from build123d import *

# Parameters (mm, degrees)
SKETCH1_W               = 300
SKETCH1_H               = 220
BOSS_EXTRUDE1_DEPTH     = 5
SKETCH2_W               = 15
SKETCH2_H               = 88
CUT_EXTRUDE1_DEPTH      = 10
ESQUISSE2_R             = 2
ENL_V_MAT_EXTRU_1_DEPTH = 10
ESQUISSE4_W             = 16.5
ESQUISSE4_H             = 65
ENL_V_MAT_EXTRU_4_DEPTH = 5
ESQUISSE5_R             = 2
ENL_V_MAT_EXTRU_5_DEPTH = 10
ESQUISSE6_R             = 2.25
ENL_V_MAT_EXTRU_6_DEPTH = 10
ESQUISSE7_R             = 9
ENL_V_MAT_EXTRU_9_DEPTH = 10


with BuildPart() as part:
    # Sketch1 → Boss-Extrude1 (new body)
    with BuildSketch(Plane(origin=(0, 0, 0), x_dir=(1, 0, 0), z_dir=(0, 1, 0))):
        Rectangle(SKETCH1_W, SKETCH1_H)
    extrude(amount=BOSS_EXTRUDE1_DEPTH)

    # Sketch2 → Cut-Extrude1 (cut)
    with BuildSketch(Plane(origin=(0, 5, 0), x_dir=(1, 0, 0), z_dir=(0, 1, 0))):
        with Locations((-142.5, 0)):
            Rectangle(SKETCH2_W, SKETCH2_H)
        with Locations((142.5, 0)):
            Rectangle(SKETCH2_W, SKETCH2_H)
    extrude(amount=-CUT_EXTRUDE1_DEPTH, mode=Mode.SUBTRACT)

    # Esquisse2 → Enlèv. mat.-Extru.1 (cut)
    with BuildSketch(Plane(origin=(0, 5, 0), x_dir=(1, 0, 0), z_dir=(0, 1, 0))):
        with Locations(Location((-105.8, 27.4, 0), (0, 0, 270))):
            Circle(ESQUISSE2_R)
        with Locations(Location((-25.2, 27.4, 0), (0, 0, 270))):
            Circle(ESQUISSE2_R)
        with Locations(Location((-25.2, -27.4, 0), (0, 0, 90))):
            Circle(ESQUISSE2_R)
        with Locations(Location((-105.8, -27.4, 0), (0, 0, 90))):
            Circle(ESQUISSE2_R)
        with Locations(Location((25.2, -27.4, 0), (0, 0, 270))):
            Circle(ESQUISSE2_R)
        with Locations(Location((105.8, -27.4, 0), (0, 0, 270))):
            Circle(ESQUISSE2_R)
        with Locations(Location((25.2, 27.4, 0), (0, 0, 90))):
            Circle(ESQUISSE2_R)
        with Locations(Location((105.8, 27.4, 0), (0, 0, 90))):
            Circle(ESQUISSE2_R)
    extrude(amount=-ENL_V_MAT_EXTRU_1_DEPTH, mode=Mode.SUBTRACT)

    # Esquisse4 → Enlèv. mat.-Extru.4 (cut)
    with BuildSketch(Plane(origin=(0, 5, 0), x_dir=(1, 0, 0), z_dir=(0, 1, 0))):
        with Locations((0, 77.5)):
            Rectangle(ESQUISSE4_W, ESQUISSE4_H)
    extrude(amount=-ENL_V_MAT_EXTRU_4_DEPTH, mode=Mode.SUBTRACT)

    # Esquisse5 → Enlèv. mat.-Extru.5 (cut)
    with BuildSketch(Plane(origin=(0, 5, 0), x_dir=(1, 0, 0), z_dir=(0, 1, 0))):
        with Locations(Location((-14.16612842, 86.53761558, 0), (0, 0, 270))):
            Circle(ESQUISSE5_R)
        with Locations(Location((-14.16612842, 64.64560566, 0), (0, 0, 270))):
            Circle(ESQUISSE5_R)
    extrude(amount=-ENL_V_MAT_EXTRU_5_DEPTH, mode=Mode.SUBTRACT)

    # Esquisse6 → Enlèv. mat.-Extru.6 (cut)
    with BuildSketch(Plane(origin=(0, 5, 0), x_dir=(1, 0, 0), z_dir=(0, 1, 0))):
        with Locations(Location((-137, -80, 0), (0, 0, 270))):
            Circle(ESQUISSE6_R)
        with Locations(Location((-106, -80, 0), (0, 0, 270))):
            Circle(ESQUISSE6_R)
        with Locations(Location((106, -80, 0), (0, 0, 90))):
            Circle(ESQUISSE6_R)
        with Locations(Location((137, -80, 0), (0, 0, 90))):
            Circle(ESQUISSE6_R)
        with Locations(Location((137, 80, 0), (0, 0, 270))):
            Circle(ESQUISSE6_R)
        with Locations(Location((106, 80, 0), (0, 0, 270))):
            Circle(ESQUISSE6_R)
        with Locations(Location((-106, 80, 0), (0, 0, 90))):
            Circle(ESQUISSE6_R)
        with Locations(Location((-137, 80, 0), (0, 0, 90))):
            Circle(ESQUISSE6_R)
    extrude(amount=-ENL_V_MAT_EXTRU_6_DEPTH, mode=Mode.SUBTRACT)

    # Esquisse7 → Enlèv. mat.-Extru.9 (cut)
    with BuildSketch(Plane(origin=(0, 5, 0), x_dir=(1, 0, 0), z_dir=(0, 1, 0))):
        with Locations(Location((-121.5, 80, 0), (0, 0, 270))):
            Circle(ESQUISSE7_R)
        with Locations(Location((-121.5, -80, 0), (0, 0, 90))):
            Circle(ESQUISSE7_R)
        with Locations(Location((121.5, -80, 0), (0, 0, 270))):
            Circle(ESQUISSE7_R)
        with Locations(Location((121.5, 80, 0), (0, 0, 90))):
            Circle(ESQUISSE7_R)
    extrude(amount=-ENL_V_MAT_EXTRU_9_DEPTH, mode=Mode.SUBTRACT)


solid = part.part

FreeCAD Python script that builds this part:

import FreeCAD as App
import Part
import Sketcher

V = App.Vector


def add_polygon(sketch, points):
    """Adds a closed chain of lines whose ends are joined by coincident constraints."""
    first, n = sketch.GeometryCount, len(points)
    for a, b in zip(points, points[1:] + points[:1]):
        sketch.addGeometry(Part.LineSegment(App.Vector(*a, 0), App.Vector(*b, 0)), False)
    for i in range(n):
        sketch.addConstraint(Sketcher.Constraint("Coincident", first + i, 2, first + (i + 1) % n, 1))

doc = App.newDocument("Part")
body = doc.addObject("PartDesign::Body", "Body")

sketch1 = body.newObject("Sketcher::SketchObject", "Sketch")
sketch1.AttachmentSupport = (doc.getObject("XZ_Plane"), [""])
sketch1.MapMode = "FlatFace"
add_polygon(sketch1, [(-150, -110), (-150, 110), (150, 110), (150, -110)])
sketch1.addConstraint([
    Sketcher.Constraint("Vertical", 0),
    Sketcher.Constraint("Horizontal", 1),
    Sketcher.Constraint("Vertical", 2),
    Sketcher.Constraint("Horizontal", 3),
    Sketcher.Constraint("Symmetric", 0, 2, 2, 2, -1, 1),
    Sketcher.Constraint("DistanceX", 1, 1, 1, 2, 300.0),
    Sketcher.Constraint("DistanceY", 0, 1, 0, 2, 220.0),
])
pad1 = body.newObject("PartDesign::Pad", "Pad")
pad1.Profile = sketch1
pad1.Length = 5
pad1.Reversed = True

sketch2 = body.newObject("Sketcher::SketchObject", "Sketch001")
sketch2.AttachmentSupport = (doc.getObject("XZ_Plane"), [""])
sketch2.MapMode = "FlatFace"
sketch2.AttachmentOffset = App.Placement(V(0, 0, -5), App.Rotation())
add_polygon(sketch2, [(-150, -44), (-150, 44), (-135, 44), (-135, -44)])
add_polygon(sketch2, [(135, -44), (135, 44), (150, 44), (150, -44)])
sketch2.addConstraint([
    Sketcher.Constraint("Vertical", 0),
    Sketcher.Constraint("Horizontal", 1),
    Sketcher.Constraint("Vertical", 2),
    Sketcher.Constraint("Horizontal", 3),
    Sketcher.Constraint("Vertical", 4),
    Sketcher.Constraint("Horizontal", 5),
    Sketcher.Constraint("Vertical", 6),
    Sketcher.Constraint("Horizontal", 7),
    Sketcher.Constraint("Symmetric", 2, 2, 4, 2, -1, 1),
    Sketcher.Constraint("Symmetric", 0, 2, 6, 2, -1, 1),
    Sketcher.Constraint("Horizontal", 1, 2, 4, 2),
    Sketcher.Constraint("DistanceX", 1, 1, 1, 2, 15.0),
    Sketcher.Constraint("DistanceY", 0, 1, 0, 2, 88.0),
    Sketcher.Constraint("DistanceX", 0, 2, -1, 1, 150.0),
])
pocket1 = body.newObject("PartDesign::Pocket", "Pocket")
pocket1.Profile = sketch2
pocket1.Length = 10
pocket1.Reversed = True

sketch3 = body.newObject("Sketcher::SketchObject", "Sketch002")
sketch3.AttachmentSupport = (doc.getObject("XZ_Plane"), [""])
sketch3.MapMode = "FlatFace"
sketch3.AttachmentOffset = App.Placement(V(0, 0, -5), App.Rotation())
sketch3.addGeometry([
    Part.Circle(V(-105.8, -27.4, 0), V(0, 0, 1), 2),
    Part.Circle(V(-25.2, -27.4, 0), V(0, 0, 1), 2),
    Part.Circle(V(-25.2, 27.4, 0), V(0, 0, 1), 2),
    Part.Circle(V(-105.8, 27.4, 0), V(0, 0, 1), 2),
    Part.Circle(V(25.2, 27.4, 0), V(0, 0, 1), 2),
    Part.Circle(V(105.8, 27.4, 0), V(0, 0, 1), 2),
    Part.Circle(V(25.2, -27.4, 0), V(0, 0, 1), 2),
    Part.Circle(V(105.8, -27.4, 0), V(0, 0, 1), 2),
], False)
sketch3.addConstraint([
    Sketcher.Constraint("Equal", 0, 1),
    Sketcher.Constraint("Equal", 1, 2),
    Sketcher.Constraint("Equal", 2, 3),
    Sketcher.Constraint("Equal", 3, 4),
    Sketcher.Constraint("Equal", 4, 5),
    Sketcher.Constraint("Equal", 5, 6),
    Sketcher.Constraint("Equal", 6, 7),
    Sketcher.Constraint("Symmetric", 1, 3, 4, 3, -1, 1),
    Sketcher.Constraint("Symmetric", 0, 3, 5, 3, -1, 1),
    Sketcher.Constraint("Symmetric", 2, 3, 6, 3, -1, 1),
    Sketcher.Constraint("Symmetric", 3, 3, 7, 3, -1, 1),
    Sketcher.Constraint("Symmetric", 2, 3, 4, 3, -2),
    Sketcher.Constraint("Symmetric", 3, 3, 5, 3, -2),
    Sketcher.Constraint("Horizontal", 0, 3, 1, 3),
    Sketcher.Constraint("Diameter", 0, 4.0),
    Sketcher.Constraint("DistanceX", 3, 3, 4, 3, 131.0),
    Sketcher.Constraint("DistanceX", 0, 3, -1, 1, 105.8),
    Sketcher.Constraint("DistanceY", 0, 3, -1, 1, 27.4),
])
pocket2 = body.newObject("PartDesign::Pocket", "Pocket001")
pocket2.Profile = sketch3
pocket2.Length = 10
pocket2.Reversed = True

sketch4 = body.newObject("Sketcher::SketchObject", "Sketch003")
sketch4.AttachmentSupport = (doc.getObject("XZ_Plane"), [""])
sketch4.MapMode = "FlatFace"
sketch4.AttachmentOffset = App.Placement(V(0, 0, -5), App.Rotation())
add_polygon(sketch4, [(-8.25, -110), (-8.25, -45), (8.25, -45), (8.25, -110)])
sketch4.addConstraint([
    Sketcher.Constraint("Vertical", 0),
    Sketcher.Constraint("Horizontal", 1),
    Sketcher.Constraint("Vertical", 2),
    Sketcher.Constraint("Horizontal", 3),
    Sketcher.Constraint("DistanceY", 0, 1, 0, 2, 65.0),
    Sketcher.Constraint("DistanceX", 1, 1, 1, 2, 16.5),
    Sketcher.Constraint("DistanceY", 0, 2, -1, 1, 45.0),
    Sketcher.Constraint("DistanceX", 0, 2, -1, 1, 8.25),
])
pocket3 = body.newObject("PartDesign::Pocket", "Pocket002")
pocket3.Profile = sketch4
pocket3.Length = 5
pocket3.Reversed = True

sketch5 = body.newObject("Sketcher::SketchObject", "Sketch004")
sketch5.AttachmentSupport = (doc.getObject("XZ_Plane"), [""])
sketch5.MapMode = "FlatFace"
sketch5.AttachmentOffset = App.Placement(V(0, 0, -5), App.Rotation())
sketch5.addGeometry([
    Part.Circle(V(-14.166128, -86.537616, 0), V(0, 0, 1), 2),
    Part.Circle(V(-14.166128, -64.645606, 0), V(0, 0, 1), 2),
], False)
sketch5.addConstraint([
    Sketcher.Constraint("Equal", 0, 1),
    Sketcher.Constraint("Vertical", 0, 3, 1, 3),
    Sketcher.Constraint("Diameter", 0, 4.0),
    Sketcher.Constraint("DistanceX", 0, 3, -1, 1, 14.166128),
    Sketcher.Constraint("DistanceY", 0, 3, 1, 3, 21.89201),
    Sketcher.Constraint("DistanceY", 0, 3, -1, 1, 86.537616),
])
pocket4 = body.newObject("PartDesign::Pocket", "Pocket003")
pocket4.Profile = sketch5
pocket4.Length = 10
pocket4.Reversed = True

sketch6 = body.newObject("Sketcher::SketchObject", "Sketch005")
sketch6.AttachmentSupport = (doc.getObject("XZ_Plane"), [""])
sketch6.MapMode = "FlatFace"
sketch6.AttachmentOffset = App.Placement(V(0, 0, -5), App.Rotation())
sketch6.addGeometry([
    Part.Circle(V(-137, 80, 0), V(0, 0, 1), 2.25),
    Part.Circle(V(-106, 80, 0), V(0, 0, 1), 2.25),
    Part.Circle(V(106, 80, 0), V(0, 0, 1), 2.25),
    Part.Circle(V(137, 80, 0), V(0, 0, 1), 2.25),
    Part.Circle(V(137, -80, 0), V(0, 0, 1), 2.25),
    Part.Circle(V(106, -80, 0), V(0, 0, 1), 2.25),
    Part.Circle(V(-106, -80, 0), V(0, 0, 1), 2.25),
    Part.Circle(V(-137, -80, 0), V(0, 0, 1), 2.25),
], False)
sketch6.addConstraint([
    Sketcher.Constraint("Equal", 0, 1),
    Sketcher.Constraint("Equal", 1, 2),
    Sketcher.Constraint("Equal", 2, 3),
    Sketcher.Constraint("Equal", 3, 4),
    Sketcher.Constraint("Equal", 4, 5),
    Sketcher.Constraint("Equal", 5, 6),
    Sketcher.Constraint("Equal", 6, 7),
    Sketcher.Constraint("Symmetric", 0, 3, 4, 3, -1, 1),
    Sketcher.Constraint("Symmetric", 1, 3, 5, 3, -1, 1),
    Sketcher.Constraint("Symmetric", 2, 3, 6, 3, -1, 1),
    Sketcher.Constraint("Symmetric", 3, 3, 7, 3, -1, 1),
    Sketcher.Constraint("Symmetric", 1, 3, 2, 3, -2),
    Sketcher.Constraint("Symmetric", 0, 3, 3, 3, -2),
    Sketcher.Constraint("Horizontal", 0, 3, 1, 3),
    Sketcher.Constraint("Diameter", 0, 4.5),
    Sketcher.Constraint("DistanceX", 0, 3, -1, 1, 137.0),
    Sketcher.Constraint("DistanceY", -1, 1, 0, 3, 80.0),
    Sketcher.Constraint("DistanceX", 1, 3, -1, 1, 106.0),
])
pocket5 = body.newObject("PartDesign::Pocket", "Pocket004")
pocket5.Profile = sketch6
pocket5.Length = 10
pocket5.Reversed = True

sketch7 = body.newObject("Sketcher::SketchObject", "Sketch006")
sketch7.AttachmentSupport = (doc.getObject("XZ_Plane"), [""])
sketch7.MapMode = "FlatFace"
sketch7.AttachmentOffset = App.Placement(V(0, 0, -5), App.Rotation())
sketch7.addGeometry([
    Part.Circle(V(-121.5, -80, 0), V(0, 0, 1), 9),
    Part.Circle(V(-121.5, 80, 0), V(0, 0, 1), 9),
    Part.Circle(V(121.5, 80, 0), V(0, 0, 1), 9),
    Part.Circle(V(121.5, -80, 0), V(0, 0, 1), 9),
], False)
sketch7.addConstraint([
    Sketcher.Constraint("Equal", 0, 1),
    Sketcher.Constraint("Equal", 1, 2),
    Sketcher.Constraint("Equal", 2, 3),
    Sketcher.Constraint("Symmetric", 0, 3, 2, 3, -1, 1),
    Sketcher.Constraint("Symmetric", 1, 3, 3, 3, -1, 1),
    Sketcher.Constraint("Symmetric", 1, 3, 2, 3, -2),
    Sketcher.Constraint("Diameter", 0, 18.0),
    Sketcher.Constraint("DistanceY", 0, 3, -1, 1, 80.0),
    Sketcher.Constraint("DistanceX", 1, 3, 2, 3, 243.0),
])
pocket6 = body.newObject("PartDesign::Pocket", "Pocket005")
pocket6.Profile = sketch7
pocket6.Length = 10
pocket6.Reversed = True

doc.recompute()
